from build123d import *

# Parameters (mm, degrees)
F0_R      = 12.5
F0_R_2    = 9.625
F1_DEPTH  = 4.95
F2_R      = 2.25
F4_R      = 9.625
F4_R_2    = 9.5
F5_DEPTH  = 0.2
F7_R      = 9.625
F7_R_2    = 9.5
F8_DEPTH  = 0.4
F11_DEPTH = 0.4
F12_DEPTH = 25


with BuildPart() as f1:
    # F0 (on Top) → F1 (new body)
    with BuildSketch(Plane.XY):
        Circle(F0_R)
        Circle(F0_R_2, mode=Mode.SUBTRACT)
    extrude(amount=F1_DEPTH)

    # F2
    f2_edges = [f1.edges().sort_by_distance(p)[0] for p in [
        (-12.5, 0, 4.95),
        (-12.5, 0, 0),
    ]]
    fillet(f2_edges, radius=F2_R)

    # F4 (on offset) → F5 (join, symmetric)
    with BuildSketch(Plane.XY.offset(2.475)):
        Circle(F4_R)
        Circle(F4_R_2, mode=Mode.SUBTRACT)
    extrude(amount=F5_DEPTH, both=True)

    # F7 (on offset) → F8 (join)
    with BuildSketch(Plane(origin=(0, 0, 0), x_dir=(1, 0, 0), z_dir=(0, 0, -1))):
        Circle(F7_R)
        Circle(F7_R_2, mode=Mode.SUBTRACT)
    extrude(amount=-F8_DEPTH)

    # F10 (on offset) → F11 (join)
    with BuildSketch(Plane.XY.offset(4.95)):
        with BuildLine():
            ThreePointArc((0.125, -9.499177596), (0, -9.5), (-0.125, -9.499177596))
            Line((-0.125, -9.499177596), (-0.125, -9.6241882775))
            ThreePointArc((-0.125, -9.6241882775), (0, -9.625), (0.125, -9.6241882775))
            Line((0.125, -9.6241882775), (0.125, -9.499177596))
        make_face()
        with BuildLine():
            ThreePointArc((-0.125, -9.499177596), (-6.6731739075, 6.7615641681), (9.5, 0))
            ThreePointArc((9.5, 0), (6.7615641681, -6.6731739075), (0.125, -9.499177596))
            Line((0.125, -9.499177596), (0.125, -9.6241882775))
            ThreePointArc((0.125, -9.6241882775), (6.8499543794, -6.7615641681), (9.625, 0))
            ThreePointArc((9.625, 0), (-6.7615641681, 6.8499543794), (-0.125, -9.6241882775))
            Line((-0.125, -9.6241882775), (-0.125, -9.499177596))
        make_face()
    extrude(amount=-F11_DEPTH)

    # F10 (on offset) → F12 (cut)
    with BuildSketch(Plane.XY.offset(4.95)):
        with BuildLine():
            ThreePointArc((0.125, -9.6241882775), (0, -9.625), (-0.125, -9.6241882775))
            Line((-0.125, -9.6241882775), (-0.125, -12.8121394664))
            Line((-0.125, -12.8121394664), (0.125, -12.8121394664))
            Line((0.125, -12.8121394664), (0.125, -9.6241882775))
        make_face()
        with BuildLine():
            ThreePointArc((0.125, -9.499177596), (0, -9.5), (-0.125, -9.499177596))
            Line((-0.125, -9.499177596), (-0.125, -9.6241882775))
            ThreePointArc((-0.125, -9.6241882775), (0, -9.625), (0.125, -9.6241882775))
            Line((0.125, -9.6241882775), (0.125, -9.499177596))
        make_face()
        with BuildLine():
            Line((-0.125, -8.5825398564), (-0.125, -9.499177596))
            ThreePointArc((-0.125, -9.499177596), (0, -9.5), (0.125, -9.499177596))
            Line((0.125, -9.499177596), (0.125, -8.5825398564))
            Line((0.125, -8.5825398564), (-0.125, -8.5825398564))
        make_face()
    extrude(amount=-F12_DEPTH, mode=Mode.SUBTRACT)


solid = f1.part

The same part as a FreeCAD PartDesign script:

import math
import FreeCAD as App
import Part
import Sketcher

V = App.Vector


def edges_at(feature, points):
    """Names of the edges that pass closest to the given points."""
    edges = feature.Shape.Edges
    near = lambda p: min(range(len(edges)), key=lambda i: edges[i].distToShape(Part.Vertex(*p))[0])
    return sorted({f"Edge{near(p) + 1}" for p in points})


def add_polygon(sketch, points):
    """Adds a closed chain of lines whose ends are joined by coincident constraints."""
    first, n = sketch.GeometryCount, len(points)
    for a, b in zip(points, points[1:] + points[:1]):
        sketch.addGeometry(Part.LineSegment(App.Vector(*a, 0), App.Vector(*b, 0)), False)
    for i in range(n):
        sketch.addConstraint(Sketcher.Constraint("Coincident", first + i, 2, first + (i + 1) % n, 1))

doc = App.newDocument("Part")
params = doc.addObject("Spreadsheet::Sheet", "Params")
for row, (alias, value) in enumerate([
    ("sketch1_diameter", "25 mm"),
    ("sketch1_diameter2", "19.25 mm"),
    ("pad1_length", "4.95 mm"),
    ("fillet_radius", "2.25 mm"),
    ("sketch2_diameter", "19 mm"),
    ("sketch2_diameter2", "19.25 mm"),
    ("pad2_length", "0.4 mm"),
    ("sketch3_diameter", "19 mm"),
    ("sketch3_diameter2", "19.25 mm"),
    ("pad3_length", "0.4 mm"),
    ("sketch4_radius", "9.5 mm"),
    ("pad4_length", "0.4 mm"),
    ("sketch5_width", "0.25 mm"),
    ("pocket1_length", "25 mm"),
], start=1):
    params.set(f"A{row}", alias)
    params.set(f"B{row}", "=" + value)
    params.setAlias(f"B{row}", alias)

body = doc.addObject("PartDesign::Body", "Body")

# Sketch on XY plane
sketch1 = body.newObject("Sketcher::SketchObject", "Sketch")
sketch1.AttachmentSupport = (doc.getObject("XY_Plane"), [""])
sketch1.MapMode = "FlatFace"
sketch1.addGeometry(Part.Circle(V(0, 0, 0), V(0, 0, 1), 12), False)
sketch1.addGeometry(Part.Circle(V(0, 0, 0), V(0, 0, 1), 10), False)
sketch1.addConstraint(Sketcher.Constraint("Coincident", 0, 3, -1, 1))
sketch1.addConstraint(Sketcher.Constraint("Coincident", 1, 3, -1, 1))
sketch1.addConstraint(Sketcher.Constraint("Diameter", 0, 25.0))
sketch1.addConstraint(Sketcher.Constraint("Diameter", 1, 19.25))
sketch1.setExpression("Constraints[2]", "Params.sketch1_diameter")
sketch1.setExpression("Constraints[3]", "Params.sketch1_diameter2")
pad1 = body.newObject("PartDesign::Pad", "Pad")
pad1.Profile = sketch1
pad1.setExpression("Length", "Params.pad1_length")
doc.recompute()

fillet = body.newObject("PartDesign::Fillet", "Fillet")
fillet.Base = (pad1, edges_at(pad1, [(-12.5, 0, 4.95), (-12.5, 0, 0)]))
fillet.setExpression("Radius", "Params.fillet_radius")

# Sketch on XY plane
sketch2 = body.newObject("Sketcher::SketchObject", "Sketch001")
sketch2.AttachmentSupport = (doc.getObject("XY_Plane"), [""])
sketch2.MapMode = "FlatFace"
sketch2.AttachmentOffset = App.Placement(V(0, 0, 2.475), App.Rotation())
sketch2.addGeometry(Part.Circle(V(0, 0, 0), V(0, 0, 1), 10), False)
sketch2.addGeometry(Part.Circle(V(0, 0, 0), V(0, 0, 1), 10), False)
sketch2.addConstraint(Sketcher.Constraint("Coincident", 0, 3, -1, 1))
sketch2.addConstraint(Sketcher.Constraint("Coincident", 1, 3, -1, 1))
sketch2.addConstraint(Sketcher.Constraint("Diameter", 1, 19.0))
sketch2.addConstraint(Sketcher.Constraint("Diameter", 0, 19.25))
sketch2.setExpression("Constraints[2]", "Params.sketch2_diameter")
sketch2.setExpression("Constraints[3]", "Params.sketch2_diameter2")
pad2 = body.newObject("PartDesign::Pad", "Pad001")
pad2.Profile = sketch2
pad2.setExpression("Length", "Params.pad2_length")
pad2.Midplane = True

# Sketch on XY plane
sketch3 = body.newObject("Sketcher::SketchObject", "Sketch002")
sketch3.AttachmentSupport = (doc.getObject("XY_Plane"), [""])
sketch3.MapMode = "FlatFace"
sketch3.addGeometry(Part.Circle(V(0, 0, 0), V(0, 0, 1), 10), False)
sketch3.addGeometry(Part.Circle(V(0, 0, 0), V(0, 0, 1), 10), False)
sketch3.addConstraint(Sketcher.Constraint("Coincident", 0, 3, -1, 1))
sketch3.addConstraint(Sketcher.Constraint("Coincident", 1, 3, -1, 1))
sketch3.addConstraint(Sketcher.Constraint("Diameter", 1, 19.0))
sketch3.addConstraint(Sketcher.Constraint("Diameter", 0, 19.25))
sketch3.setExpression("Constraints[2]", "Params.sketch3_diameter")
sketch3.setExpression("Constraints[3]", "Params.sketch3_diameter2")
pad3 = body.newObject("PartDesign::Pad", "Pad002")
pad3.Profile = sketch3
pad3.setExpression("Length", "Params.pad3_length")

# Sketch on XY plane
sketch4 = body.newObject("Sketcher::SketchObject", "Sketch003")
sketch4.AttachmentSupport = (doc.getObject("XY_Plane"), [""])
sketch4.MapMode = "FlatFace"
sketch4.AttachmentOffset = App.Placement(V(0, 0, 4.95), App.Rotation())
sketch4.addGeometry(Part.ArcOfCircle(Part.Circle(V(0, 0, 0), V(0, 0, 1), 9.63), math.radians(-90.74), math.radians(-89.26)), False)
sketch4.addGeometry(Part.ArcOfCircle(Part.Circle(V(0, 0, 0), V(0, 0, 1), 9.62), math.radians(-89), math.radians(0)), False)
sketch4.addGeometry(Part.ArcOfCircle(Part.Circle(V(0, 0, 0), V(0, 0, 1), 9.62), math.radians(0), math.radians(269)), False)
sketch4.addGeometry(Part.ArcOfCircle(Part.Circle(V(0, 0, 0), V(0, 0, 1), 9.5), math.radians(-90.75), math.radians(-89.25)), False)
sketch4.addGeometry(Part.ArcOfCircle(Part.Circle(V(0, 0, 0), V(0, 0, 1), 9.5), math.radians(0), math.radians(269)), False)
sketch4.addGeometry(Part.ArcOfCircle(Part.Circle(V(0, 0, 0), V(0, 0, 1), 9.5), math.radians(-89), math.radians(0)), False)
sketch4.addConstraint(Sketcher.Constraint("Tangent", 0, 2, 1, 1))
sketch4.addConstraint(Sketcher.Constraint("Tangent", 1, 2, 2, 1))
sketch4.addConstraint(Sketcher.Constraint("Coincident", 2, 2, 0, 1))
sketch4.addConstraint(Sketcher.Constraint("Tangent", 3, 1, 4, 2))
sketch4.addConstraint(Sketcher.Constraint("Tangent", 4, 1, 5, 2))
sketch4.addConstraint(Sketcher.Constraint("Coincident", 5, 1, 3, 2))
sketch4.addConstraint(Sketcher.Constraint("Coincident", 0, 3, -1, 1))
sketch4.addConstraint(Sketcher.Constraint("Coincident", 3, 3, -1, 1))
sketch4.addConstraint(Sketcher.Constraint("Equal", 0, 1))
sketch4.addConstraint(Sketcher.Constraint("Equal", 3, 4))
sketch4.addConstraint(Sketcher.Constraint("PointOnObject", 1, 2, -1))
sketch4.addConstraint(Sketcher.Constraint("PointOnObject", 4, 1, -1))
sketch4.addConstraint(Sketcher.Constraint("Horizontal", 0, 2, 2, 2))
sketch4.addConstraint(Sketcher.Constraint("Horizontal", 3, 1, 5, 1))
sketch4.addConstraint(Sketcher.Constraint("Vertical", 2, 2, 3, 1))
sketch4.addConstraint(Sketcher.Constraint("Radius", 3, 9.5))
sketch4.addConstraint(Sketcher.Constraint("Radius", 0, 9.625))
sketch4.addConstraint(Sketcher.Constraint("DistanceX", 2, 2, 0, 2, 0.25))
sketch4.setExpression("Constraints[15]", "Params.sketch4_radius")
pad4 = body.newObject("PartDesign::Pad", "Pad003")
pad4.Profile = sketch4
pad4.setExpression("Length", "Params.pad4_length")
pad4.Reversed = True

# Sketch on XY plane
sketch5 = body.newObject("Sketcher::SketchObject", "Sketch004")
sketch5.AttachmentSupport = (doc.getObject("XY_Plane"), [""])
sketch5.MapMode = "FlatFace"
sketch5.AttachmentOffset = App.Placement(V(0, 0, 4.95), App.Rotation())
add_polygon(sketch5, [(-0.12, -12.81), (0.12, -12.81), (0.12, -8.58), (-0.12, -8.58)])  # lines 0-3
sketch5.addConstraint(Sketcher.Constraint("Horizontal", 0))
sketch5.addConstraint(Sketcher.Constraint("Vertical", 1))
sketch5.addConstraint(Sketcher.Constraint("Horizontal", 2))
sketch5.addConstraint(Sketcher.Constraint("Vertical", 3))
sketch5.addConstraint(Sketcher.Constraint("DistanceX", 0, 1, 0, 2, 0.25))
sketch5.addConstraint(Sketcher.Constraint("DistanceY", 1, 1, 1, 2, 4.2296))
sketch5.addConstraint(Sketcher.Constraint("DistanceX", -1, 1, 0, 2, 0.125))
sketch5.addConstraint(Sketcher.Constraint("DistanceY", 0, 2, -1, 1, 12.812139))
sketch5.setExpression("Constraints[8]", "Params.sketch5_width")
pocket1 = body.newObject("PartDesign::Pocket", "Pocket")
pocket1.Profile = sketch5
pocket1.setExpression("Length", "Params.pocket1_length")

doc.recompute()
